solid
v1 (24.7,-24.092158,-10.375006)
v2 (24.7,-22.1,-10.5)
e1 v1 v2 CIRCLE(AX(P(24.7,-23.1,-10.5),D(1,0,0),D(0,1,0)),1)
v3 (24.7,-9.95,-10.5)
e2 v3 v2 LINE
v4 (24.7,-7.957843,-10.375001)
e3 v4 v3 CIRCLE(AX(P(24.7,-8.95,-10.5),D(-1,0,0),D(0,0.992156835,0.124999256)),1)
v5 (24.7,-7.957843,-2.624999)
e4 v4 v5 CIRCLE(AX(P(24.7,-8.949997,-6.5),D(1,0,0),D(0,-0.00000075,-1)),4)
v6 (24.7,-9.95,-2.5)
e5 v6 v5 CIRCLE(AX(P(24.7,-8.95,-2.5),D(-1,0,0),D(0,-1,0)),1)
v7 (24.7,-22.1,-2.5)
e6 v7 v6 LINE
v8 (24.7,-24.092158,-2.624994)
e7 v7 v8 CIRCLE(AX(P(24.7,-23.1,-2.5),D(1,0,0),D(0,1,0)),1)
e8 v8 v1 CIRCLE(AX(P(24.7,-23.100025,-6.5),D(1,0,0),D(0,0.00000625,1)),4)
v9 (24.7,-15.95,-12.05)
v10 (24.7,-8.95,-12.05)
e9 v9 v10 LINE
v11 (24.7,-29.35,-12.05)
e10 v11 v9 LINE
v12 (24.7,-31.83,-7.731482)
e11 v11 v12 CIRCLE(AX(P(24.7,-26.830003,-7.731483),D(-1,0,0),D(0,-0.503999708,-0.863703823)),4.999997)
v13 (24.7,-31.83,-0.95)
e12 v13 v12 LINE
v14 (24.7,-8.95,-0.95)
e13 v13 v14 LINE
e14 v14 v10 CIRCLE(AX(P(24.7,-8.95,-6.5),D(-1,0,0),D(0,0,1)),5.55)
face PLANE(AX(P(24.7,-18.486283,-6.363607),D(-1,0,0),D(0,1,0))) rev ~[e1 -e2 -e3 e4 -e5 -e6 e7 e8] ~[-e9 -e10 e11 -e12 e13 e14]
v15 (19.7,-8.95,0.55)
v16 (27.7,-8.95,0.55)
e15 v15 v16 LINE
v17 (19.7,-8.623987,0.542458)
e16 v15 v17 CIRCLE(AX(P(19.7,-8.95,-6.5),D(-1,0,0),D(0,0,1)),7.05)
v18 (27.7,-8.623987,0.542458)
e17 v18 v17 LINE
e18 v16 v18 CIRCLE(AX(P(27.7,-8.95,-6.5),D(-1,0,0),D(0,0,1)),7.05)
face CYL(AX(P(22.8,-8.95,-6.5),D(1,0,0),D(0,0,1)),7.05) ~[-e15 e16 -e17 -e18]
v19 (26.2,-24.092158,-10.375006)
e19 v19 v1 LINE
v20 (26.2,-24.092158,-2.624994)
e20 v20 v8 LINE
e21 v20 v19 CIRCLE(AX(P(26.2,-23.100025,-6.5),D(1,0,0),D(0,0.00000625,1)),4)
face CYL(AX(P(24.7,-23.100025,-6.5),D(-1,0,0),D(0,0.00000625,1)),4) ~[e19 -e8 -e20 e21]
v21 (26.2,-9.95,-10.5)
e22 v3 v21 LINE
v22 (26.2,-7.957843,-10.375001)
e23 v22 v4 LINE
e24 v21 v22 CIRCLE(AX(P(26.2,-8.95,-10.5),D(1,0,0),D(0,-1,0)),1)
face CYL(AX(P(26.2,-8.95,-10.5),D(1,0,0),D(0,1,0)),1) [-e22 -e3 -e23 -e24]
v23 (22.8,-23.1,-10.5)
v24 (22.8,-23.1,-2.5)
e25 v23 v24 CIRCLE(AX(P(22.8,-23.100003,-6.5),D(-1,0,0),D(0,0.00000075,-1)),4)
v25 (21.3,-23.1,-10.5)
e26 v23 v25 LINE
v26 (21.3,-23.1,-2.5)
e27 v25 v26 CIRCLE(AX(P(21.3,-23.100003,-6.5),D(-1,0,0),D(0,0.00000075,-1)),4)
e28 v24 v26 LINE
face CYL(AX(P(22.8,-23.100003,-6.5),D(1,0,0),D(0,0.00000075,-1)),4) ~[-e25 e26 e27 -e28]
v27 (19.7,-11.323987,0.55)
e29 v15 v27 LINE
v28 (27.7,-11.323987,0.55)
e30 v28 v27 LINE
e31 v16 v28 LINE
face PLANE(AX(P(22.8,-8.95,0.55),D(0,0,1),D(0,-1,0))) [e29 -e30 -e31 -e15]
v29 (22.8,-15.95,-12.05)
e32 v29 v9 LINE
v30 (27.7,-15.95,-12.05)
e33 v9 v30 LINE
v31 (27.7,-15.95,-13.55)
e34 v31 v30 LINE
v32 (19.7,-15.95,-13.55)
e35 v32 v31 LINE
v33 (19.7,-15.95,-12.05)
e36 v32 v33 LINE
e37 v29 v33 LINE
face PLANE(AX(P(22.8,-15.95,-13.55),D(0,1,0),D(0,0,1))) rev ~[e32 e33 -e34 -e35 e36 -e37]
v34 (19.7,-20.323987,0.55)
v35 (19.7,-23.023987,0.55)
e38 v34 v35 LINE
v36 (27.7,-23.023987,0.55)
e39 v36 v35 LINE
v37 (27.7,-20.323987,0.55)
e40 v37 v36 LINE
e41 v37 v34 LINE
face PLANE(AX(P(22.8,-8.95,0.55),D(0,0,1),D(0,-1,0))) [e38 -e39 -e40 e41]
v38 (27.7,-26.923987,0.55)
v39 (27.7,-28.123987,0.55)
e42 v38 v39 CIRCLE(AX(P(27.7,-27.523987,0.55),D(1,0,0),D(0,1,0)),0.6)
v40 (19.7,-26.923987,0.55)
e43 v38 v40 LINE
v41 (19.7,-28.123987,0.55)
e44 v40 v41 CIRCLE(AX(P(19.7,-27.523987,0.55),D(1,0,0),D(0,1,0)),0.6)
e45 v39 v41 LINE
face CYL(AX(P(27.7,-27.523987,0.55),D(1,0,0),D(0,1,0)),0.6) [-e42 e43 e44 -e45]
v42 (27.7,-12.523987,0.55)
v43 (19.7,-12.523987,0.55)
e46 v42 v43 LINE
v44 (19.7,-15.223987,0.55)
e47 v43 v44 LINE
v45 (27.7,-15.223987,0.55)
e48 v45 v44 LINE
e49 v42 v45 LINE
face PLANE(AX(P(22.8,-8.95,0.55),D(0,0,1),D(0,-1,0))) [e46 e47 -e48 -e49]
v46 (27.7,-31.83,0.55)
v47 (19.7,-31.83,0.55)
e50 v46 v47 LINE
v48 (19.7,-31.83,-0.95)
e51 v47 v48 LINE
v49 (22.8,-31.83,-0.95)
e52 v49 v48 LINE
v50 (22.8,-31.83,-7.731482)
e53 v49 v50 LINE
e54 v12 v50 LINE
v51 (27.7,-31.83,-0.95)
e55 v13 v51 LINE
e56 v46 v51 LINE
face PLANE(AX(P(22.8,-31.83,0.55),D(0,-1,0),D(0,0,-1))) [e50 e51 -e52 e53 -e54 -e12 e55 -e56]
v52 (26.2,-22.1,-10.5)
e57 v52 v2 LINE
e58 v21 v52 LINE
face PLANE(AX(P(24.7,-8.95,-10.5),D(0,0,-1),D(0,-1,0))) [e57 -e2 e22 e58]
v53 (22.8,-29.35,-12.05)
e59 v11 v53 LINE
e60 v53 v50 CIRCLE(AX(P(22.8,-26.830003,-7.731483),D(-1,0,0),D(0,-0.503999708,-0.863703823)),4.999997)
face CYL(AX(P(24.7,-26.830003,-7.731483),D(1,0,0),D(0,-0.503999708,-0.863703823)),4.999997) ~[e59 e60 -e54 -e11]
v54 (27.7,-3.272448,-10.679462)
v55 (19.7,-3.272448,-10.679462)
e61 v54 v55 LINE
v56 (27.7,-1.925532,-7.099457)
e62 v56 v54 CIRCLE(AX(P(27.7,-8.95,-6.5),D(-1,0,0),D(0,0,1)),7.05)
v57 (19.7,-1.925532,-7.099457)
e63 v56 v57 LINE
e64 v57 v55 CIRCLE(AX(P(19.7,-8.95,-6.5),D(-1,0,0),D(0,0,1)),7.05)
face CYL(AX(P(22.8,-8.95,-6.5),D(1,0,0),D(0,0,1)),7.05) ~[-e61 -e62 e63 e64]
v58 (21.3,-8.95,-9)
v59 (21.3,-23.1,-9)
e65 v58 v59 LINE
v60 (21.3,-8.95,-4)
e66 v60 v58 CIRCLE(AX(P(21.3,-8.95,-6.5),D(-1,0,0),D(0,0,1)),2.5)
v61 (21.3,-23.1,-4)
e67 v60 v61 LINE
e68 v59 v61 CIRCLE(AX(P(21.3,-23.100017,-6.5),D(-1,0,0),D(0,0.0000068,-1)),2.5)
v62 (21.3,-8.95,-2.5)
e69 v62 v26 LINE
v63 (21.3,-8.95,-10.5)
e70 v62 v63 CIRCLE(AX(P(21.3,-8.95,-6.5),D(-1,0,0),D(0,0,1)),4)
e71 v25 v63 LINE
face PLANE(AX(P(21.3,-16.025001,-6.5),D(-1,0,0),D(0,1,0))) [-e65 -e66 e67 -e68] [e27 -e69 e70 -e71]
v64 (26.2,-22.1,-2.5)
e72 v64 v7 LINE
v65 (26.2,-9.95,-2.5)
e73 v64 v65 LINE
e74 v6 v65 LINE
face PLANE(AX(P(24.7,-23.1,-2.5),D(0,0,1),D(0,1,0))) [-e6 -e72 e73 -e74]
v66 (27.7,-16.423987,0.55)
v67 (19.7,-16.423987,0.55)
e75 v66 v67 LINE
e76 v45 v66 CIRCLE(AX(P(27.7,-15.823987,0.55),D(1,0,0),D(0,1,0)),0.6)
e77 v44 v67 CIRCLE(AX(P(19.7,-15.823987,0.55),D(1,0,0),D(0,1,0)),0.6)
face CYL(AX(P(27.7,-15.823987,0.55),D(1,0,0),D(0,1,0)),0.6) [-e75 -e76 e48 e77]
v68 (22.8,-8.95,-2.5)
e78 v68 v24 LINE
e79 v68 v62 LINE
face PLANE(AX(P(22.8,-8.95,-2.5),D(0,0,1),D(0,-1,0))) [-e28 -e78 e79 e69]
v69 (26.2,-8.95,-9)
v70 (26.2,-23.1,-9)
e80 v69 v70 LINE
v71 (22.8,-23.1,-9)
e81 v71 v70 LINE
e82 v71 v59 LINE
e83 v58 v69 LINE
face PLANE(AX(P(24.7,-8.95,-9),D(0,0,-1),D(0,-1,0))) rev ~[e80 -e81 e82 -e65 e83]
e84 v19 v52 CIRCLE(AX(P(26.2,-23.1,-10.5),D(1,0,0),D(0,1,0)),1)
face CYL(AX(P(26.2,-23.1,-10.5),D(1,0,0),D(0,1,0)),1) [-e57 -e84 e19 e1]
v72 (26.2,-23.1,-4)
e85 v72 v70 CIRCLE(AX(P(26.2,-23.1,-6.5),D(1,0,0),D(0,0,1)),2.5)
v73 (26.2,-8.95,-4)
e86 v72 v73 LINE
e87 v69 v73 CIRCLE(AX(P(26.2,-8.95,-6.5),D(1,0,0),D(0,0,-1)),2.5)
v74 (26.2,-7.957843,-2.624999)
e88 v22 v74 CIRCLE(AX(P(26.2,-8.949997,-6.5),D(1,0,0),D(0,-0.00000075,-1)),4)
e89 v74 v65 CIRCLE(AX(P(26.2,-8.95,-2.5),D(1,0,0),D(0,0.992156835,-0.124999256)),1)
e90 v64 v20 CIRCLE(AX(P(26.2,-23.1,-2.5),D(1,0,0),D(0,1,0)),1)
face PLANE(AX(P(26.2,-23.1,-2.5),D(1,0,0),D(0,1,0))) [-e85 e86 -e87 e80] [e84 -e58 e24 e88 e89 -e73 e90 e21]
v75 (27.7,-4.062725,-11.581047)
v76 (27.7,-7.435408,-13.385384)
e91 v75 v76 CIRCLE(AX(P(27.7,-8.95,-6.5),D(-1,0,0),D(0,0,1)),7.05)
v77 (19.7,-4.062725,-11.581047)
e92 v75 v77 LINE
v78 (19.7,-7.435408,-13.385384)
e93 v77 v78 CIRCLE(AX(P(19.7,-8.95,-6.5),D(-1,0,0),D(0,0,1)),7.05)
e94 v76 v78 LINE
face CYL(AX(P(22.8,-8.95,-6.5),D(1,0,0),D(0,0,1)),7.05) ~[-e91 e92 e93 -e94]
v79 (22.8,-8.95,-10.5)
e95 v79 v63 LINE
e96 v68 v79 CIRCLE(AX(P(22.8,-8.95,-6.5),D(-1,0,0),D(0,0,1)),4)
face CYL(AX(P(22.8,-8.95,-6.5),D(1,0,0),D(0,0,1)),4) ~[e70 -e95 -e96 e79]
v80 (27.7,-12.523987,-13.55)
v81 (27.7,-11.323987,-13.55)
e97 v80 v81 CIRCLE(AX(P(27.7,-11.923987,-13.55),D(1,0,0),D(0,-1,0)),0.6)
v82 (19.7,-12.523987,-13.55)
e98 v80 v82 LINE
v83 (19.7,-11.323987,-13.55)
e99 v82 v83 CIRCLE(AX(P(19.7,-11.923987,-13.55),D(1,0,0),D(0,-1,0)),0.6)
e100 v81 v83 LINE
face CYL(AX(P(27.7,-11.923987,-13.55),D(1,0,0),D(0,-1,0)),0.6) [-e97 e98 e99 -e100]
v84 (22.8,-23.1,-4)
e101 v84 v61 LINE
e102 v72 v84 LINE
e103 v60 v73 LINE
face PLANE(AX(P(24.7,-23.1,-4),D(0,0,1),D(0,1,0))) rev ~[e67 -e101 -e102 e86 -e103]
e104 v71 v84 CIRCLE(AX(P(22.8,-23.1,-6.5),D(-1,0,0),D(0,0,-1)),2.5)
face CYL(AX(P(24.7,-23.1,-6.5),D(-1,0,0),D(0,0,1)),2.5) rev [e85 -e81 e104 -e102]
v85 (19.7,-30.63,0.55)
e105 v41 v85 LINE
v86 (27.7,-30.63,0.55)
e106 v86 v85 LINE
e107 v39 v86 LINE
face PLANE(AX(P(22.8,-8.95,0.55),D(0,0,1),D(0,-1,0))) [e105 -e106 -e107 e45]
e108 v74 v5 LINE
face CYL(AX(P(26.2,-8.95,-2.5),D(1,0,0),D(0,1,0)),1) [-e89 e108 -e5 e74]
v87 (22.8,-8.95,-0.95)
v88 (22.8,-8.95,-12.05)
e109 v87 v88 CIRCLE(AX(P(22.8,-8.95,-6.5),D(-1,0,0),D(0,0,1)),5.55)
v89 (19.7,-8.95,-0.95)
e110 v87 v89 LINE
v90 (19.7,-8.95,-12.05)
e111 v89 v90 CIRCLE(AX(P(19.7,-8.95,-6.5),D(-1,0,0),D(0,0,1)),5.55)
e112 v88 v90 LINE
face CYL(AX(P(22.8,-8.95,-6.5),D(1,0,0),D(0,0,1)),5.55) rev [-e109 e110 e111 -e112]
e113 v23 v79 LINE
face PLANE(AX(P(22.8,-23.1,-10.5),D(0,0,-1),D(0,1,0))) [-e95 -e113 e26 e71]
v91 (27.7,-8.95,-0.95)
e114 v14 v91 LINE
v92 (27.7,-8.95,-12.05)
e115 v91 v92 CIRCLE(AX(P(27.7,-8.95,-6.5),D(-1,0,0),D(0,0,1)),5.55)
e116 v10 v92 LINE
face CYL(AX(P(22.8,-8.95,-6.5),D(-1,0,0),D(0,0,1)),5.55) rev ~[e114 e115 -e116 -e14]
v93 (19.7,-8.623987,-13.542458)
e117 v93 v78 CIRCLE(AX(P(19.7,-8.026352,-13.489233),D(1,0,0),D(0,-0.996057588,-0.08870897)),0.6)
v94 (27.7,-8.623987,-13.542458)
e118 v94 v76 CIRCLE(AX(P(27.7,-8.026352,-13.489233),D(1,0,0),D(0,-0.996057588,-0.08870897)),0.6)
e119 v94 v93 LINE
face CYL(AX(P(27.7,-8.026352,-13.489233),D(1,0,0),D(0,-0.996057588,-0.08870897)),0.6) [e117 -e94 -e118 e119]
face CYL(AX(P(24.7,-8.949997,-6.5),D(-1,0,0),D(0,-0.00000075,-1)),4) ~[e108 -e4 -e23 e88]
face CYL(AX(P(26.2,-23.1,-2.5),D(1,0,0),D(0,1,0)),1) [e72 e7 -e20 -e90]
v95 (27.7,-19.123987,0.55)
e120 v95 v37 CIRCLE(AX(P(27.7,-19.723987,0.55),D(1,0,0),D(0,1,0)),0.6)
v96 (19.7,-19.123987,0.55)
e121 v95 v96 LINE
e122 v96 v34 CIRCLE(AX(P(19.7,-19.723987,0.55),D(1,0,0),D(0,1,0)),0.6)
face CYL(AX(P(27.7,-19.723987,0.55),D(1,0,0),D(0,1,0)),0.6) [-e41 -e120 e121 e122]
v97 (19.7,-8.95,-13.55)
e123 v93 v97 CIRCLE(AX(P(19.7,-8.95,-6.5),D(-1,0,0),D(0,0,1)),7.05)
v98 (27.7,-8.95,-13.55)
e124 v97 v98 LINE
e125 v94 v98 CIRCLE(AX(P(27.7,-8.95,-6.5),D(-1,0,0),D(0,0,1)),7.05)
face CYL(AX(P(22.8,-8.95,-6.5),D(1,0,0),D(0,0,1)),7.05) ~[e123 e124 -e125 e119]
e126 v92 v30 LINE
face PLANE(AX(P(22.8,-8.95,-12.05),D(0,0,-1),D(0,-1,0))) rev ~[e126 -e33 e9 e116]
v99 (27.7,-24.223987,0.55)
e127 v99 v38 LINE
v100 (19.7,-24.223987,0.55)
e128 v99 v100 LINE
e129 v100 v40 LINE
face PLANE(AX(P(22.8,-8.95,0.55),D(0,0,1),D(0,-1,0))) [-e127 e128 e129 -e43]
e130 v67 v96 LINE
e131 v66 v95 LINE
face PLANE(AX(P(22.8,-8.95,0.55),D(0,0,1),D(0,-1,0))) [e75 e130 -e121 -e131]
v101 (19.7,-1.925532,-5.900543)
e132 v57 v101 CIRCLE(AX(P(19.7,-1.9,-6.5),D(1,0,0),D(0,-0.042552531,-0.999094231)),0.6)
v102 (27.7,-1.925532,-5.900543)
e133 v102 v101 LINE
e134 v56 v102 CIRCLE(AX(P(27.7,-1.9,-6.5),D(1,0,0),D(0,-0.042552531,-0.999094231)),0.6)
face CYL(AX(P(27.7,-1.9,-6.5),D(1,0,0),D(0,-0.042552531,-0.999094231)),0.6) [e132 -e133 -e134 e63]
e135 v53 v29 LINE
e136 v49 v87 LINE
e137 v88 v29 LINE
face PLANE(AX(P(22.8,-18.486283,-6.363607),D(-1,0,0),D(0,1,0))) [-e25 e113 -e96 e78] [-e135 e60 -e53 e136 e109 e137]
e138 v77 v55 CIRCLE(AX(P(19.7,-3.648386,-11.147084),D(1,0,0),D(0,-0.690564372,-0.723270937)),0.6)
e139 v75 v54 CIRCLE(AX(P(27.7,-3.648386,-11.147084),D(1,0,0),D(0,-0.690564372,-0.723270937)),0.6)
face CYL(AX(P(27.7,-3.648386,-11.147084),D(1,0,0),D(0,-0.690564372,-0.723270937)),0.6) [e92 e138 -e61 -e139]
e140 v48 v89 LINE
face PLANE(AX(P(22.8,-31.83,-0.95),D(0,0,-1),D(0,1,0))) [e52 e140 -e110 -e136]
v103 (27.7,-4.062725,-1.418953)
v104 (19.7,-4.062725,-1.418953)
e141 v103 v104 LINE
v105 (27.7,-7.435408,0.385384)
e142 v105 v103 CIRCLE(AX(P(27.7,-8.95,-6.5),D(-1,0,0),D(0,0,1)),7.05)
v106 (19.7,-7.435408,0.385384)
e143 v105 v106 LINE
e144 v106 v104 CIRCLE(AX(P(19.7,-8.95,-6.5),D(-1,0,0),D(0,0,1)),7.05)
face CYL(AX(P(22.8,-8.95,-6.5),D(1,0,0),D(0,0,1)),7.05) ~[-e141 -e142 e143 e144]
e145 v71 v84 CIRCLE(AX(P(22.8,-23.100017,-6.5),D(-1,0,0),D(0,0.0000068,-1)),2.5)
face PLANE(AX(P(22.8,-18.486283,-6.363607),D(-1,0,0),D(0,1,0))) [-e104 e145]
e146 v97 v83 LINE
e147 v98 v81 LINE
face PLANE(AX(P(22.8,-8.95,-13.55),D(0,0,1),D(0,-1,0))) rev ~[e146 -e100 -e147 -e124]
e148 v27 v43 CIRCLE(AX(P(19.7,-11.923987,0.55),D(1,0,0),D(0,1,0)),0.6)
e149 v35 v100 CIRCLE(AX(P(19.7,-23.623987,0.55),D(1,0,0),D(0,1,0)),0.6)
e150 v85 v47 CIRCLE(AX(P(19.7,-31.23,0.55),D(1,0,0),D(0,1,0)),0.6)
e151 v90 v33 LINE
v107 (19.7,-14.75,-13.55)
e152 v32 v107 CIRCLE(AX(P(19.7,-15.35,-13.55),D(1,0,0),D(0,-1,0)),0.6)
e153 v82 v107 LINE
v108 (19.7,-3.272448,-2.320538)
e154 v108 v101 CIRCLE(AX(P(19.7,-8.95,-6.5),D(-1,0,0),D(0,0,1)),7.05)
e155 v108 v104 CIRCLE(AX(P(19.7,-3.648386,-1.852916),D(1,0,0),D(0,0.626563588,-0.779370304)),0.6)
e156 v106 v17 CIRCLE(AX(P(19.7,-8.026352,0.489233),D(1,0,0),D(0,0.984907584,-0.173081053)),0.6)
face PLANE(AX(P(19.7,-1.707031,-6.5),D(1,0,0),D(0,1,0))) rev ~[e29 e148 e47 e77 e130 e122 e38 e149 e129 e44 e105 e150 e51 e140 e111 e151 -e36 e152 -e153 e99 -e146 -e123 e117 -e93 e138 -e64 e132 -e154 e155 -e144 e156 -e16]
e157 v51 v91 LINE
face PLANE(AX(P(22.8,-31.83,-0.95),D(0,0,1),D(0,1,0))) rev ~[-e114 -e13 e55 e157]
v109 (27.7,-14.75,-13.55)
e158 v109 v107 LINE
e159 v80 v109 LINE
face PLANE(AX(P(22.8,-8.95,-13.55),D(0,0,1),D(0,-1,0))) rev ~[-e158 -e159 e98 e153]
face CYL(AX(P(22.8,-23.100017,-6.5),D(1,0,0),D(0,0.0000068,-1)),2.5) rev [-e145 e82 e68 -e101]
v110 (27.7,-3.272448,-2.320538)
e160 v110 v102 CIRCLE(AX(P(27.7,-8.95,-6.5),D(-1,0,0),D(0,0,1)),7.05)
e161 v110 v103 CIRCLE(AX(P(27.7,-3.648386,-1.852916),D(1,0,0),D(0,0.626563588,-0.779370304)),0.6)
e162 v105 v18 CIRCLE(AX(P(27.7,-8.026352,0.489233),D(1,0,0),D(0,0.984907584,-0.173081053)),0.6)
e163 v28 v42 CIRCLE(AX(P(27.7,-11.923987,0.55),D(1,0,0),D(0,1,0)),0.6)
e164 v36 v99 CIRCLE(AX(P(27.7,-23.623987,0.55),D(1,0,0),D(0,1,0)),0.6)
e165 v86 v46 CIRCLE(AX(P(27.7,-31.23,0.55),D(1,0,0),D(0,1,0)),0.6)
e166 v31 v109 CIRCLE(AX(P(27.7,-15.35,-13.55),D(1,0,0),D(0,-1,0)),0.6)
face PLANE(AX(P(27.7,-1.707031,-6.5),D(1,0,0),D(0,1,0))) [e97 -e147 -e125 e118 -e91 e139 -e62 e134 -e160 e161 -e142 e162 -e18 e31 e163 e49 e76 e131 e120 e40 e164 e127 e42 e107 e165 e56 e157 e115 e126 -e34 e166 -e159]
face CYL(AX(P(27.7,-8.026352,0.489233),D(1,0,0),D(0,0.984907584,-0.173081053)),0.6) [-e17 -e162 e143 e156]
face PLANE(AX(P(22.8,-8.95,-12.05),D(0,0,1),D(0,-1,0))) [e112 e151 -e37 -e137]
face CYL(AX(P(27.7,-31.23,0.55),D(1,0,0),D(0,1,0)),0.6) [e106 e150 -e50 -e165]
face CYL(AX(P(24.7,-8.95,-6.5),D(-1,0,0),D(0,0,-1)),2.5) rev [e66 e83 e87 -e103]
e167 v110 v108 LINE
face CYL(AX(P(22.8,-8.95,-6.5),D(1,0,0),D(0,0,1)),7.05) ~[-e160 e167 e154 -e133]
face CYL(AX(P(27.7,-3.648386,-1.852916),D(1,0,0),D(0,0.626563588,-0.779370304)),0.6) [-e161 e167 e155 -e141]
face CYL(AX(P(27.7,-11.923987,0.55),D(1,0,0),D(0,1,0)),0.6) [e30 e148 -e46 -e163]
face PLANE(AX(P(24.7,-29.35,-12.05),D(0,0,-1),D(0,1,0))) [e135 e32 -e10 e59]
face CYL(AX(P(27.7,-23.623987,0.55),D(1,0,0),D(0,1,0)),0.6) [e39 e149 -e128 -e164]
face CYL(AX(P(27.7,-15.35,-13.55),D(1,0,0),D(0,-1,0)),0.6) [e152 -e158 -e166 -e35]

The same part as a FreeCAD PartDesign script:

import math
import FreeCAD as App
import Part
import Sketcher

V = App.Vector
Q = App.Units.Quantity

doc = App.newDocument("Part")
body = doc.addObject("PartDesign::Body", "Body")

# Sketch on XY plane
sketch1 = body.newObject("Sketcher::SketchObject", "Sketch")
sketch1.AttachmentSupport = (doc.getObject("XY_Plane"), [""])
sketch1.MapMode = "FlatFace"
sketch1.addGeometry([
    Part.LineSegment(V(19.2, -5.5, 0), V(42, -5.5, 0)),  # 0
    Part.ArcOfCircle(Part.Circle(V(42, 0, 0), V(0, 0, 1), 5.5), math.radians(-90), math.radians(90)),  # 1
    Part.LineSegment(V(42, 5.5, 0), V(21.6, 5.5, 0)),  # 2
    Part.ArcOfCircle(Part.Circle(V(24.2, 1.2, 0), V(0, 0, 1), 5), math.radians(120), math.radians(180)),  # 3
    Part.LineSegment(V(19.2, 1.2, 0), V(19.2, -5.5, 0)),  # 4
], False)
sketch1.addConstraint([
    Sketcher.Constraint("Tangent", 0, 2, 1, 1),
    Sketcher.Constraint("Tangent", 1, 2, 2, 1),
    Sketcher.Constraint("Coincident", 2, 2, 3, 1),
    Sketcher.Constraint("Tangent", 3, 2, 4, 1),
    Sketcher.Constraint("Coincident", 4, 2, 0, 1),
    Sketcher.Constraint("Horizontal", 0),
    Sketcher.Constraint("Horizontal", 2),
    Sketcher.Constraint("Vertical", 4),
    Sketcher.Constraint("PointOnObject", 1, 3, -1),
    Sketcher.Constraint("Radius", 1, Q("5.55 mm")),
    Sketcher.Constraint("DistanceX", 2, 2, 2, 1, Q("20.4 mm")),
    Sketcher.Constraint("DistanceX", 0, 1, 0, 2, Q("22.88 mm")),
    Sketcher.Constraint("DistanceX", -1, 1, 1, 3, Q("42.05 mm")),
    Sketcher.Constraint("Radius", 3, Q("4.999997 mm")),
])
pad1 = body.newObject("PartDesign::Pad", "Pad")
pad1.Profile = sketch1
pad1.Length = 1.9

# Sketch on XY plane
sketch2 = body.newObject("Sketcher::SketchObject", "Sketch001")
sketch2.AttachmentSupport = (doc.getObject("XY_Plane"), [""])
sketch2.MapMode = "FlatFace"
sketch2.AttachmentOffset = App.Placement(V(0, 0, 1.9), App.Rotation())
sketch2.addGeometry([
    Part.ArcOfCircle(Part.Circle(V(27.9, 0, 0), V(0, 0, 1), 2.5), math.radians(90), math.radians(270)),
    Part.LineSegment(V(27.9, -2.5, 0), V(42, -2.5, 0)),
    Part.ArcOfCircle(Part.Circle(V(42, 0, 0), V(0, 0, 1), 2.5), math.radians(-90), math.radians(90)),
    Part.LineSegment(V(42, 2.5, 0), V(27.9, 2.5, 0)),
], False)
sketch2.addConstraint([
    Sketcher.Constraint("Tangent", 0, 2, 1, 1),
    Sketcher.Constraint("Tangent", 1, 2, 2, 1),
    Sketcher.Constraint("Tangent", 2, 2, 3, 1),
    Sketcher.Constraint("Tangent", 3, 2, 0, 1),
    Sketcher.Constraint("Horizontal", 1),
    Sketcher.Constraint("Horizontal", 3),
    Sketcher.Constraint("PointOnObject", 0, 3, -1),
    Sketcher.Constraint("Radius", 0, Q("2.5 mm")),
    Sketcher.Constraint("DistanceX", 1, 1, 1, 2, Q("14.15 mm")),
    Sketcher.Constraint("DistanceX", -1, 1, 0, 3, Q("27.9 mm")),
])
pocket1 = body.newObject("PartDesign::Pocket", "Pocket")
pocket1.Profile = sketch2
pocket1.Length = 2

# Sketch on XY plane
sketch3 = body.newObject("Sketcher::SketchObject", "Sketch002")
sketch3.AttachmentSupport = (doc.getObject("XY_Plane"), [""])
sketch3.MapMode = "FlatFace"
sketch3.AttachmentOffset = App.Placement(V(0, 0, 1.9), App.Rotation())
sketch3.addGeometry([
    Part.ArcOfCircle(Part.Circle(V(42, 0, 0), V(0, 0, 1), 4), math.radians(-90), math.radians(90)),  # 0
    Part.LineSegment(V(42, 4, 0), V(27.9, 4, 0)),  # 1
    Part.ArcOfCircle(Part.Circle(V(27.9, 0, 0), V(0, 0, 1), 4), math.radians(90), math.radians(270)),  # 2
    Part.LineSegment(V(27.9, -4, 0), V(42, -4, 0)),  # 3
    Part.ArcOfCircle(Part.Circle(V(27.9, 0, 0), V(0, 0, 1), 2.5), math.radians(90), math.radians(270)),  # 4
    Part.LineSegment(V(27.9, 2.5, 0), V(42, 2.5, 0)),  # 5
    Part.ArcOfCircle(Part.Circle(V(42, 0, 0), V(0, 0, 1), 2.5), math.radians(-90), math.radians(90)),  # 6
    Part.LineSegment(V(42, -2.5, 0), V(27.9, -2.5, 0)),  # 7
], False)
sketch3.addConstraint([
    Sketcher.Constraint("Tangent", 0, 2, 1, 1),
    Sketcher.Constraint("Tangent", 1, 2, 2, 1),
    Sketcher.Constraint("Tangent", 2, 2, 3, 1),
    Sketcher.Constraint("Tangent", 3, 2, 0, 1),
    Sketcher.Constraint("Coincident", 4, 1, 5, 1),
    Sketcher.Constraint("Tangent", 5, 2, 6, 2),
    Sketcher.Constraint("Tangent", 6, 1, 7, 1),
    Sketcher.Constraint("Coincident", 7, 2, 4, 2),
    Sketcher.Constraint("Horizontal", 1),
    Sketcher.Constraint("Horizontal", 3),
    Sketcher.Constraint("Horizontal", 5),
    Sketcher.Constraint("Horizontal", 7),
    Sketcher.Constraint("Coincident", 6, 3, 0, 3),
    Sketcher.Constraint("Symmetric", 4, 1, 7, 2, -1),
    Sketcher.Constraint("Vertical", 2, 2, 4, 1),
    Sketcher.Constraint("Radius", 0, Q("4 mm")),
    Sketcher.Constraint("Radius", 4, Q("2.5 mm")),
    Sketcher.Constraint("DistanceX", 1, 2, 1, 1, Q("14.15 mm")),
    Sketcher.Constraint("DistanceX", -1, 1, 1, 2, Q("27.9 mm")),
    Sketcher.Constraint("DistanceX", -1, 1, 4, 3, Q("27.899983 mm")),
])
pad2 = body.newObject("PartDesign::Pad", "Pad001")
pad2.Profile = sketch3
pad2.Length = 1.5

# Sketch on XY plane
sketch4 = body.newObject("Sketcher::SketchObject", "Sketch003")
sketch4.AttachmentSupport = (doc.getObject("XY_Plane"), [""])
sketch4.MapMode = "FlatFace"
sketch4.addGeometry([
    Part.LineSegment(V(42, -4, 0), V(27.9, -4, 0)),  # 0
    Part.ArcOfCircle(Part.Circle(V(27.9, 0, 0), V(0, 0, 1), 4), math.radians(90), math.radians(270)),  # 1
    Part.LineSegment(V(27.9, 4, 0), V(42, 4, 0)),  # 2
    Part.ArcOfCircle(Part.Circle(V(42.1, 0, 0), V(0, 0, 1), 4), math.radians(-90), math.radians(90)),  # 3
    Part.LineSegment(V(27.9, -2.5, 0), V(42, -2.5, 0)),  # 4
    Part.ArcOfCircle(Part.Circle(V(42, 0, 0), V(0, 0, 1), 2.5), math.radians(-90), math.radians(90)),  # 5
    Part.LineSegment(V(42, 2.5, 0), V(27.9, 2.5, 0)),  # 6
    Part.ArcOfCircle(Part.Circle(V(27.9, 0, 0), V(0, 0, 1), 2.5), math.radians(90), math.radians(270)),  # 7
], False)
sketch4.addConstraint([
    Sketcher.Constraint("Coincident", 0, 2, 1, 2),
    Sketcher.Constraint("Coincident", 1, 1, 2, 1),
    Sketcher.Constraint("Tangent", 2, 2, 3, 2),
    Sketcher.Constraint("Tangent", 3, 1, 0, 1),
    Sketcher.Constraint("Tangent", 4, 2, 5, 1),
    Sketcher.Constraint("Tangent", 5, 2, 6, 1),
    Sketcher.Constraint("Tangent", 6, 2, 7, 1),
    Sketcher.Constraint("Tangent", 7, 2, 4, 1),
    Sketcher.Constraint("Horizontal", 0),
    Sketcher.Constraint("Horizontal", 2),
    Sketcher.Constraint("Horizontal", 4),
    Sketcher.Constraint("Horizontal", 6),
    Sketcher.Constraint("Coincident", 5, 3, 3, 3),
    Sketcher.Constraint("Symmetric", 0, 2, 1, 1, -1),
    Sketcher.Constraint("Vertical", 7, 3, 0, 2),
    Sketcher.Constraint("Radius", 1, Q("4 mm")),
    Sketcher.Constraint("Radius", 5, Q("2.5 mm")),
    Sketcher.Constraint("DistanceX", 0, 2, 0, 1, Q("14.15 mm")),
    Sketcher.Constraint("DistanceX", -1, 1, 7, 3, Q("27.9 mm")),
    Sketcher.Constraint("DistanceX", -1, 1, 1, 3, Q("27.899975 mm")),
])
pad3 = body.newObject("PartDesign::Pad", "Pad002")
pad3.Profile = sketch4
pad3.Length = 1.5
pad3.Reversed = True

# Sketch on XY plane
sketch5 = body.newObject("Sketcher::SketchObject", "Sketch004")
sketch5.AttachmentSupport = (doc.getObject("XY_Plane"), [""])
sketch5.MapMode = "FlatFace"
sketch5.AttachmentOffset = App.Placement(V(0, 0, 1.9), App.Rotation())
sketch5.addGeometry([
    Part.ArcOfCircle(Part.Circle(V(42, 0, 0), V(0, 0, 1), 5.5), math.radians(-90), math.radians(90)),  # 0
    Part.LineSegment(V(42, -5.5, 0), V(19.2, -5.5, 0)),  # 1
    Part.LineSegment(V(19.2, -5.5, 0), V(19.2, -7, 0)),  # 2
    Part.LineSegment(V(19.2, -7, 0), V(42, -7, 0)),  # 3
    Part.ArcOfCircle(Part.Circle(V(42, 0, 0), V(0, 0, 1), 7), math.radians(-90), math.radians(90)),  # 4
    Part.LineSegment(V(42, 7, 0), V(35, 7, 0)),  # 5
    Part.LineSegment(V(35, 7, 0), V(35, 5.5, 0)),  # 6
    Part.LineSegment(V(35, 5.5, 0), V(42, 5.5, 0)),  # 7
], False)
sketch5.addConstraint([
    Sketcher.Constraint("Tangent", 0, 1, 1, 1),
    Sketcher.Constraint("Coincident", 1, 2, 2, 1),
    Sketcher.Constraint("Coincident", 2, 2, 3, 1),
    Sketcher.Constraint("Tangent", 3, 2, 4, 1),
    Sketcher.Constraint("Tangent", 4, 2, 5, 1),
    Sketcher.Constraint("Coincident", 5, 2, 6, 1),
    Sketcher.Constraint("Coincident", 6, 2, 7, 1),
    Sketcher.Constraint("Tangent", 7, 2, 0, 2),
    Sketcher.Constraint("Horizontal", 1),
    Sketcher.Constraint("Vertical", 2),
    Sketcher.Constraint("Horizontal", 3),
    Sketcher.Constraint("Horizontal", 5),
    Sketcher.Constraint("Vertical", 6),
    Sketcher.Constraint("Horizontal", 7),
    Sketcher.Constraint("Coincident", 4, 3, 0, 3),
    Sketcher.Constraint("PointOnObject", 0, 3, -1),
    Sketcher.Constraint("DistanceX", 5, 2, 5, 1, Q("7 mm")),
    Sketcher.Constraint("Radius", 0, Q("5.55 mm")),
    Sketcher.Constraint("Radius", 4, Q("7.05 mm")),
    Sketcher.Constraint("DistanceX", 1, 2, 1, 1, Q("22.88 mm")),
    Sketcher.Constraint("DistanceX", -1, 1, 0, 3, Q("42.05 mm")),
])
pad4 = body.newObject("PartDesign::Pad", "Pad003")
pad4.Profile = sketch5
pad4.Length = 4.9
pad4.Reversed = True

# Sketch on XY plane
sketch6 = body.newObject("Sketcher::SketchObject", "Sketch005")
sketch6.AttachmentSupport = (doc.getObject("XY_Plane"), [""])
sketch6.MapMode = "FlatFace"
sketch6.AttachmentOffset = App.Placement(V(0, 0, 1.9), App.Rotation())
sketch6.addGeometry([
    Part.ArcOfCircle(Part.Circle(V(42, 0, 0), V(0, 0, 1), 5.5), math.radians(-90), math.radians(90)),  # 0
    Part.LineSegment(V(42, -5.5, 0), V(19.2, -5.5, 0)),  # 1
    Part.LineSegment(V(19.2, -5.5, 0), V(19.2, -7, 0)),  # 2
    Part.LineSegment(V(19.2, -7, 0), V(42, -7, 0)),  # 3
    Part.ArcOfCircle(Part.Circle(V(42, 0, 0), V(0, 0, 1), 7), math.radians(-90), math.radians(90)),  # 4
    Part.LineSegment(V(42, 7, 0), V(35, 7, 0)),  # 5
    Part.LineSegment(V(35, 7, 0), V(35, 5.5, 0)),  # 6
    Part.LineSegment(V(35, 5.5, 0), V(42, 5.5, 0)),  # 7
], False)
sketch6.addConstraint([
    Sketcher.Constraint("Tangent", 0, 1, 1, 1),
    Sketcher.Constraint("Coincident", 1, 2, 2, 1),
    Sketcher.Constraint("Coincident", 2, 2, 3, 1),
    Sketcher.Constraint("Tangent", 3, 2, 4, 1),
    Sketcher.Constraint("Tangent", 4, 2, 5, 1),
    Sketcher.Constraint("Coincident", 5, 2, 6, 1),
    Sketcher.Constraint("Coincident", 6, 2, 7, 1),
    Sketcher.Constraint("Tangent", 7, 2, 0, 2),
    Sketcher.Constraint("Horizontal", 1),
    Sketcher.Constraint("Vertical", 2),
    Sketcher.Constraint("Horizontal", 3),
    Sketcher.Constraint("Horizontal", 5),
    Sketcher.Constraint("Vertical", 6),
    Sketcher.Constraint("Horizontal", 7),
    Sketcher.Constraint("Coincident", 4, 3, 0, 3),
    Sketcher.Constraint("PointOnObject", 0, 3, -1),
    Sketcher.Constraint("DistanceX", 5, 2, 5, 1, Q("7 mm")),
    Sketcher.Constraint("Radius", 0, Q("5.55 mm")),
    Sketcher.Constraint("Radius", 4, Q("7.05 mm")),
    Sketcher.Constraint("DistanceX", 1, 2, 1, 1, Q("22.88 mm")),
    Sketcher.Constraint("DistanceX", -1, 1, 0, 3, Q("42.05 mm")),
])
pad5 = body.newObject("PartDesign::Pad", "Pad004")
pad5.Profile = sketch6
pad5.Length = 3.1

# Sketch on XY plane
sketch7 = body.newObject("Sketcher::SketchObject", "Sketch006")
sketch7.AttachmentSupport = (doc.getObject("XY_Plane"), [""])
sketch7.MapMode = "FlatFace"
sketch7.AttachmentOffset = App.Placement(V(0, 0, -3), App.Rotation())
sketch7.addGeometry([
    Part.ArcOfCircle(Part.Circle(V(23.5, -7, 0), V(0, 0, 1), 0.6), math.radians(180), math.radians(360)),  # 0
    Part.LineSegment(V(22.9, -7, 0), V(24.1, -7, 0)),  # 1
    Part.ArcOfCircle(Part.Circle(V(27.4, -7, 0), V(0, 0, 1), 0.6), math.radians(180), math.radians(360)),  # 2
    Part.LineSegment(V(26.8, -7, 0), V(28, -7, 0)),  # 3
    Part.ArcOfCircle(Part.Circle(V(31.3, -7, 0), V(0, 0, 1), 0.6), math.radians(180), math.radians(360)),  # 4
    Part.LineSegment(V(30.7, -7, 0), V(31.9, -7, 0)),  # 5
    Part.ArcOfCircle(Part.Circle(V(35.2, -7, 0), V(0, 0, 1), 0.6), math.radians(180), math.radians(360)),  # 6
    Part.LineSegment(V(34.6, -7, 0), V(35.8, -7, 0)),  # 7
    Part.ArcOfCircle(Part.Circle(V(39.1, -7, 0), V(0, 0, 1), 0.6), math.radians(180), math.radians(360)),  # 8
    Part.LineSegment(V(38.5, -7, 0), V(39.7, -7, 0)),  # 9
    Part.ArcOfCircle(Part.Circle(V(49.1, 0, 0), V(0, 0, 1), 0.6), math.radians(-92), math.radians(92)),  # 10
    Part.LineSegment(V(49.1, -0.6, 0), V(49.1, 0.6, 0)),  # 11
    Part.ArcOfCircle(Part.Circle(V(47.4, -4.6, 0), V(0, 0, 1), 0.6), math.radians(-134), math.radians(51)),  # 12
    Part.LineSegment(V(46.9, -5.1, 0), V(47.7, -4.2, 0)),  # 13
    Part.ArcOfCircle(Part.Circle(V(43, -7, 0), V(0, 0, 1), 0.6), math.radians(-175), math.radians(10)),  # 14
    Part.LineSegment(V(42.4, -7, 0), V(43.6, -6.9, 0)),  # 15
    Part.ArcOfCircle(Part.Circle(V(47.4, 4.6, 0), V(0, 0, 1), 0.6), math.radians(-51), math.radians(134)),  # 16
    Part.LineSegment(V(47.7, 4.2, 0), V(46.9, 5.1, 0)),  # 17
    Part.ArcOfCircle(Part.Circle(V(43, 7, 0), V(0, 0, 1), 0.6), math.radians(-10), math.radians(175)),  # 18
    Part.LineSegment(V(43.6, 6.9, 0), V(42.4, 7, 0)),  # 19
    Part.ArcOfCircle(Part.Circle(V(39.1, 7, 0), V(0, 0, 1), 0.6), math.radians(0), math.radians(180)),  # 20
    Part.LineSegment(V(39.7, 7, 0), V(38.5, 7, 0)),  # 21
    Part.ArcOfCircle(Part.Circle(V(19.8, -7, 0), V(0, 0, 1), 0.6), math.radians(180), math.radians(360)),  # 22
    Part.LineSegment(V(19.2, -7, 0), V(20.4, -7, 0)),  # 23
    Part.ArcOfCircle(Part.Circle(V(35.6, 7, 0), V(0, 0, 1), 0.6), math.radians(0), math.radians(180)),  # 24
    Part.LineSegment(V(36.2, 7, 0), V(35, 7, 0)),  # 25
], False)
sketch7.addConstraint([
    Sketcher.Constraint("Coincident", 0, 1, 1, 1),
    Sketcher.Constraint("Coincident", 1, 2, 0, 2),
    Sketcher.Constraint("Coincident", 2, 1, 3, 1),
    Sketcher.Constraint("Coincident", 3, 2, 2, 2),
    Sketcher.Constraint("Coincident", 4, 1, 5, 1),
    Sketcher.Constraint("Coincident", 5, 2, 4, 2),
    Sketcher.Constraint("Coincident", 6, 1, 7, 1),
    Sketcher.Constraint("Coincident", 7, 2, 6, 2),
    Sketcher.Constraint("Coincident", 8, 1, 9, 1),
    Sketcher.Constraint("Coincident", 9, 2, 8, 2),
    Sketcher.Constraint("Coincident", 10, 1, 11, 1),
    Sketcher.Constraint("Coincident", 11, 2, 10, 2),
    Sketcher.Constraint("Coincident", 12, 1, 13, 1),
    Sketcher.Constraint("Coincident", 13, 2, 12, 2),
    Sketcher.Constraint("Coincident", 14, 1, 15, 1),
    Sketcher.Constraint("Coincident", 15, 2, 14, 2),
    Sketcher.Constraint("Coincident", 16, 1, 17, 1),
    Sketcher.Constraint("Coincident", 17, 2, 16, 2),
    Sketcher.Constraint("Coincident", 18, 1, 19, 1),
    Sketcher.Constraint("Coincident", 19, 2, 18, 2),
    Sketcher.Constraint("Coincident", 20, 1, 21, 1),
    Sketcher.Constraint("Coincident", 21, 2, 20, 2),
    Sketcher.Constraint("Coincident", 22, 1, 23, 1),
    Sketcher.Constraint("Coincident", 23, 2, 22, 2),
    Sketcher.Constraint("Coincident", 24, 1, 25, 1),
    Sketcher.Constraint("Coincident", 25, 2, 24, 2),
    Sketcher.Constraint("Horizontal", 1),
    Sketcher.Constraint("Horizontal", 3),
    Sketcher.Constraint("Horizontal", 5),
    Sketcher.Constraint("Horizontal", 7),
    Sketcher.Constraint("Horizontal", 9),
    Sketcher.Constraint("Vertical", 11),
    Sketcher.Constraint("Horizontal", 21),
    Sketcher.Constraint("Horizontal", 23),
    Sketcher.Constraint("Horizontal", 25),
    Sketcher.Constraint("Equal", 0, 2),
    Sketcher.Constraint("Equal", 2, 4),
    Sketcher.Constraint("Equal", 4, 6),
    Sketcher.Constraint("Equal", 6, 8),
    Sketcher.Constraint("Equal", 8, 10),
    Sketcher.Constraint("Equal", 10, 12),
    Sketcher.Constraint("Equal", 12, 14),
    Sketcher.Constraint("Equal", 14, 16),
    Sketcher.Constraint("Equal", 16, 18),
    Sketcher.Constraint("Equal", 18, 20),
    Sketcher.Constraint("Equal", 20, 22),
    Sketcher.Constraint("Equal", 22, 24),
    Sketcher.Constraint("Symmetric", 12, 3, 16, 3, -1),
    Sketcher.Constraint("Symmetric", 14, 3, 18, 3, -1),
    Sketcher.Constraint("Symmetric", 8, 3, 20, 3, -1),
    Sketcher.Constraint("PointOnObject", 10, 3, -1),
    Sketcher.Constraint("Horizontal", 0, 3, 2, 3),
    Sketcher.Constraint("Horizontal", 2, 3, 4, 3),
    Sketcher.Constraint("Horizontal", 4, 3, 6, 3),
    Sketcher.Constraint("Horizontal", 6, 3, 8, 3),
    Sketcher.Constraint("Horizontal", 8, 3, 22, 3),
    Sketcher.Constraint("Horizontal", 20, 3, 24, 3),
    Sketcher.Constraint("Horizontal", 22, 3, 0, 1),
    Sketcher.Constraint("Horizontal", 1, 2, 2, 1),
    Sketcher.Constraint("Horizontal", 3, 2, 4, 1),
    Sketcher.Constraint("Horizontal", 5, 2, 6, 1),
    Sketcher.Constraint("Horizontal", 7, 2, 8, 1),
    Sketcher.Constraint("Horizontal", 24, 3, 20, 1),
    Sketcher.Constraint("Horizontal", 9, 2, 22, 1),
    Sketcher.Constraint("Horizontal", 21, 2, 24, 1),
    Sketcher.Constraint("Vertical", 13, 2, 16, 1),
    Sketcher.Constraint("Vertical", 12, 1, 17, 2),
    Sketcher.Constraint("Vertical", 15, 2, 18, 1),
    Sketcher.Constraint("Vertical", 14, 1, 19, 2),
    Sketcher.Constraint("Equal", 13, 15),
    Sketcher.Constraint("Radius", 0, Q("0.6 mm")),
    Sketcher.Constraint("DistanceX", -1, 1, 10, 3, Q("49.1 mm")),
    Sketcher.Constraint("DistanceX", 0, 3, 2, 3, Q("3.9 mm")),
    Sketcher.Constraint("DistanceX", 2, 3, 4, 3, Q("3.9 mm")),
    Sketcher.Constraint("DistanceX", 4, 3, 6, 3, Q("3.9 mm")),
    Sketcher.Constraint("DistanceX", 6, 3, 8, 3, Q("3.9 mm")),
    Sketcher.Constraint("DistanceY", 8, 3, 20, 3, Q("14.1 mm")),
    Sketcher.Constraint("DistanceX", 9, 2, 14, 1, Q("2.7 mm")),
    Sketcher.Constraint("DistanceX", -1, 1, 22, 3, Q("19.77 mm")),
    Sketcher.Constraint("DistanceX", -1, 1, 24, 3, Q("35.65 mm")),
    Sketcher.Constraint("DistanceX", 8, 3, 12, 3, Q("8.275601 mm")),
    Sketcher.Constraint("DistanceY", 15, 2, 12, 3, Q("2.2383 mm")),
    Sketcher.Constraint("DistanceY", 11, 1, 11, 2, Q("1.198914 mm")),
    Sketcher.Constraint("DistanceY", 14, 1, -1, 1, Q("7.042458 mm")),
    Sketcher.Constraint("DistanceX", -1, 1, 15, 2, Q("43.564592 mm")),
    Sketcher.Constraint("DistanceX", -1, 1, 16, 1, Q("47.727552 mm")),
    Sketcher.Constraint("DistanceY", 14, 3, 12, 3, Q("2.342148 mm")),
    Sketcher.Constraint("DistanceY", 12, 3, 16, 3, Q("9.294169 mm")),
])
pad6 = body.newObject("PartDesign::Pad", "Pad005")
pad6.Profile = sketch7
pad6.Length = 8

# Sketch on XY plane
sketch8 = body.newObject("Sketcher::SketchObject", "Sketch007")
sketch8.AttachmentSupport = (doc.getObject("XY_Plane"), [""])
sketch8.MapMode = "FlatFace"
sketch8.AttachmentOffset = App.Placement(V(0, 0, -1.5), App.Rotation())
sketch8.addGeometry([
    Part.Circle(V(27.9, -4, 0), V(0, 0, 1), 1),
    Part.Circle(V(42, -4, 0), V(0, 0, 1), 1),
    Part.Circle(V(42, 4, 0), V(0, 0, 1), 1),
    Part.Circle(V(27.9, 4, 0), V(0, 0, 1), 1),
], False)
sketch8.addConstraint([
    Sketcher.Constraint("Equal", 0, 1),
    Sketcher.Constraint("Equal", 1, 2),
    Sketcher.Constraint("Equal", 2, 3),
    Sketcher.Constraint("Symmetric", 1, 3, 2, 3, -1),
    Sketcher.Constraint("Symmetric", 0, 3, 3, 3, -1),
    Sketcher.Constraint("Horizontal", 0, 3, 1, 3),
    Sketcher.Constraint("Diameter", 0, Q("2 mm")),
    Sketcher.Constraint("DistanceY", 0, 3, -1, 1, Q("4 mm")),
    Sketcher.Constraint("DistanceX", -1, 1, 0, 3, Q("27.9 mm")),
    Sketcher.Constraint("DistanceX", -1, 1, 1, 3, Q("42.05 mm")),
])
pad7 = body.newObject("PartDesign::Pad", "Pad006")
pad7.Profile = sketch8
pad7.Length = 2
body2 = doc.addObject("PartDesign::Body", "Body001")
doc.recompute()

body.Placement = App.Placement(V(0, 0, 0), App.Rotation(V(1, 0, 0), 270))
boolean = body2.newObject("PartDesign::Boolean", "Boolean")
boolean.Type = "Fuse"
boolean.addObjects([body])
body3 = doc.addObject("PartDesign::Body", "Body002")
doc.recompute()

body2.Placement = App.Placement(V(24.7, -51, -6.5), App.Rotation(V(0, 0, 1), 90))
boolean2 = body3.newObject("PartDesign::Boolean", "Boolean001")
boolean2.Type = "Fuse"
boolean2.addObjects([body2])

doc.recompute()
